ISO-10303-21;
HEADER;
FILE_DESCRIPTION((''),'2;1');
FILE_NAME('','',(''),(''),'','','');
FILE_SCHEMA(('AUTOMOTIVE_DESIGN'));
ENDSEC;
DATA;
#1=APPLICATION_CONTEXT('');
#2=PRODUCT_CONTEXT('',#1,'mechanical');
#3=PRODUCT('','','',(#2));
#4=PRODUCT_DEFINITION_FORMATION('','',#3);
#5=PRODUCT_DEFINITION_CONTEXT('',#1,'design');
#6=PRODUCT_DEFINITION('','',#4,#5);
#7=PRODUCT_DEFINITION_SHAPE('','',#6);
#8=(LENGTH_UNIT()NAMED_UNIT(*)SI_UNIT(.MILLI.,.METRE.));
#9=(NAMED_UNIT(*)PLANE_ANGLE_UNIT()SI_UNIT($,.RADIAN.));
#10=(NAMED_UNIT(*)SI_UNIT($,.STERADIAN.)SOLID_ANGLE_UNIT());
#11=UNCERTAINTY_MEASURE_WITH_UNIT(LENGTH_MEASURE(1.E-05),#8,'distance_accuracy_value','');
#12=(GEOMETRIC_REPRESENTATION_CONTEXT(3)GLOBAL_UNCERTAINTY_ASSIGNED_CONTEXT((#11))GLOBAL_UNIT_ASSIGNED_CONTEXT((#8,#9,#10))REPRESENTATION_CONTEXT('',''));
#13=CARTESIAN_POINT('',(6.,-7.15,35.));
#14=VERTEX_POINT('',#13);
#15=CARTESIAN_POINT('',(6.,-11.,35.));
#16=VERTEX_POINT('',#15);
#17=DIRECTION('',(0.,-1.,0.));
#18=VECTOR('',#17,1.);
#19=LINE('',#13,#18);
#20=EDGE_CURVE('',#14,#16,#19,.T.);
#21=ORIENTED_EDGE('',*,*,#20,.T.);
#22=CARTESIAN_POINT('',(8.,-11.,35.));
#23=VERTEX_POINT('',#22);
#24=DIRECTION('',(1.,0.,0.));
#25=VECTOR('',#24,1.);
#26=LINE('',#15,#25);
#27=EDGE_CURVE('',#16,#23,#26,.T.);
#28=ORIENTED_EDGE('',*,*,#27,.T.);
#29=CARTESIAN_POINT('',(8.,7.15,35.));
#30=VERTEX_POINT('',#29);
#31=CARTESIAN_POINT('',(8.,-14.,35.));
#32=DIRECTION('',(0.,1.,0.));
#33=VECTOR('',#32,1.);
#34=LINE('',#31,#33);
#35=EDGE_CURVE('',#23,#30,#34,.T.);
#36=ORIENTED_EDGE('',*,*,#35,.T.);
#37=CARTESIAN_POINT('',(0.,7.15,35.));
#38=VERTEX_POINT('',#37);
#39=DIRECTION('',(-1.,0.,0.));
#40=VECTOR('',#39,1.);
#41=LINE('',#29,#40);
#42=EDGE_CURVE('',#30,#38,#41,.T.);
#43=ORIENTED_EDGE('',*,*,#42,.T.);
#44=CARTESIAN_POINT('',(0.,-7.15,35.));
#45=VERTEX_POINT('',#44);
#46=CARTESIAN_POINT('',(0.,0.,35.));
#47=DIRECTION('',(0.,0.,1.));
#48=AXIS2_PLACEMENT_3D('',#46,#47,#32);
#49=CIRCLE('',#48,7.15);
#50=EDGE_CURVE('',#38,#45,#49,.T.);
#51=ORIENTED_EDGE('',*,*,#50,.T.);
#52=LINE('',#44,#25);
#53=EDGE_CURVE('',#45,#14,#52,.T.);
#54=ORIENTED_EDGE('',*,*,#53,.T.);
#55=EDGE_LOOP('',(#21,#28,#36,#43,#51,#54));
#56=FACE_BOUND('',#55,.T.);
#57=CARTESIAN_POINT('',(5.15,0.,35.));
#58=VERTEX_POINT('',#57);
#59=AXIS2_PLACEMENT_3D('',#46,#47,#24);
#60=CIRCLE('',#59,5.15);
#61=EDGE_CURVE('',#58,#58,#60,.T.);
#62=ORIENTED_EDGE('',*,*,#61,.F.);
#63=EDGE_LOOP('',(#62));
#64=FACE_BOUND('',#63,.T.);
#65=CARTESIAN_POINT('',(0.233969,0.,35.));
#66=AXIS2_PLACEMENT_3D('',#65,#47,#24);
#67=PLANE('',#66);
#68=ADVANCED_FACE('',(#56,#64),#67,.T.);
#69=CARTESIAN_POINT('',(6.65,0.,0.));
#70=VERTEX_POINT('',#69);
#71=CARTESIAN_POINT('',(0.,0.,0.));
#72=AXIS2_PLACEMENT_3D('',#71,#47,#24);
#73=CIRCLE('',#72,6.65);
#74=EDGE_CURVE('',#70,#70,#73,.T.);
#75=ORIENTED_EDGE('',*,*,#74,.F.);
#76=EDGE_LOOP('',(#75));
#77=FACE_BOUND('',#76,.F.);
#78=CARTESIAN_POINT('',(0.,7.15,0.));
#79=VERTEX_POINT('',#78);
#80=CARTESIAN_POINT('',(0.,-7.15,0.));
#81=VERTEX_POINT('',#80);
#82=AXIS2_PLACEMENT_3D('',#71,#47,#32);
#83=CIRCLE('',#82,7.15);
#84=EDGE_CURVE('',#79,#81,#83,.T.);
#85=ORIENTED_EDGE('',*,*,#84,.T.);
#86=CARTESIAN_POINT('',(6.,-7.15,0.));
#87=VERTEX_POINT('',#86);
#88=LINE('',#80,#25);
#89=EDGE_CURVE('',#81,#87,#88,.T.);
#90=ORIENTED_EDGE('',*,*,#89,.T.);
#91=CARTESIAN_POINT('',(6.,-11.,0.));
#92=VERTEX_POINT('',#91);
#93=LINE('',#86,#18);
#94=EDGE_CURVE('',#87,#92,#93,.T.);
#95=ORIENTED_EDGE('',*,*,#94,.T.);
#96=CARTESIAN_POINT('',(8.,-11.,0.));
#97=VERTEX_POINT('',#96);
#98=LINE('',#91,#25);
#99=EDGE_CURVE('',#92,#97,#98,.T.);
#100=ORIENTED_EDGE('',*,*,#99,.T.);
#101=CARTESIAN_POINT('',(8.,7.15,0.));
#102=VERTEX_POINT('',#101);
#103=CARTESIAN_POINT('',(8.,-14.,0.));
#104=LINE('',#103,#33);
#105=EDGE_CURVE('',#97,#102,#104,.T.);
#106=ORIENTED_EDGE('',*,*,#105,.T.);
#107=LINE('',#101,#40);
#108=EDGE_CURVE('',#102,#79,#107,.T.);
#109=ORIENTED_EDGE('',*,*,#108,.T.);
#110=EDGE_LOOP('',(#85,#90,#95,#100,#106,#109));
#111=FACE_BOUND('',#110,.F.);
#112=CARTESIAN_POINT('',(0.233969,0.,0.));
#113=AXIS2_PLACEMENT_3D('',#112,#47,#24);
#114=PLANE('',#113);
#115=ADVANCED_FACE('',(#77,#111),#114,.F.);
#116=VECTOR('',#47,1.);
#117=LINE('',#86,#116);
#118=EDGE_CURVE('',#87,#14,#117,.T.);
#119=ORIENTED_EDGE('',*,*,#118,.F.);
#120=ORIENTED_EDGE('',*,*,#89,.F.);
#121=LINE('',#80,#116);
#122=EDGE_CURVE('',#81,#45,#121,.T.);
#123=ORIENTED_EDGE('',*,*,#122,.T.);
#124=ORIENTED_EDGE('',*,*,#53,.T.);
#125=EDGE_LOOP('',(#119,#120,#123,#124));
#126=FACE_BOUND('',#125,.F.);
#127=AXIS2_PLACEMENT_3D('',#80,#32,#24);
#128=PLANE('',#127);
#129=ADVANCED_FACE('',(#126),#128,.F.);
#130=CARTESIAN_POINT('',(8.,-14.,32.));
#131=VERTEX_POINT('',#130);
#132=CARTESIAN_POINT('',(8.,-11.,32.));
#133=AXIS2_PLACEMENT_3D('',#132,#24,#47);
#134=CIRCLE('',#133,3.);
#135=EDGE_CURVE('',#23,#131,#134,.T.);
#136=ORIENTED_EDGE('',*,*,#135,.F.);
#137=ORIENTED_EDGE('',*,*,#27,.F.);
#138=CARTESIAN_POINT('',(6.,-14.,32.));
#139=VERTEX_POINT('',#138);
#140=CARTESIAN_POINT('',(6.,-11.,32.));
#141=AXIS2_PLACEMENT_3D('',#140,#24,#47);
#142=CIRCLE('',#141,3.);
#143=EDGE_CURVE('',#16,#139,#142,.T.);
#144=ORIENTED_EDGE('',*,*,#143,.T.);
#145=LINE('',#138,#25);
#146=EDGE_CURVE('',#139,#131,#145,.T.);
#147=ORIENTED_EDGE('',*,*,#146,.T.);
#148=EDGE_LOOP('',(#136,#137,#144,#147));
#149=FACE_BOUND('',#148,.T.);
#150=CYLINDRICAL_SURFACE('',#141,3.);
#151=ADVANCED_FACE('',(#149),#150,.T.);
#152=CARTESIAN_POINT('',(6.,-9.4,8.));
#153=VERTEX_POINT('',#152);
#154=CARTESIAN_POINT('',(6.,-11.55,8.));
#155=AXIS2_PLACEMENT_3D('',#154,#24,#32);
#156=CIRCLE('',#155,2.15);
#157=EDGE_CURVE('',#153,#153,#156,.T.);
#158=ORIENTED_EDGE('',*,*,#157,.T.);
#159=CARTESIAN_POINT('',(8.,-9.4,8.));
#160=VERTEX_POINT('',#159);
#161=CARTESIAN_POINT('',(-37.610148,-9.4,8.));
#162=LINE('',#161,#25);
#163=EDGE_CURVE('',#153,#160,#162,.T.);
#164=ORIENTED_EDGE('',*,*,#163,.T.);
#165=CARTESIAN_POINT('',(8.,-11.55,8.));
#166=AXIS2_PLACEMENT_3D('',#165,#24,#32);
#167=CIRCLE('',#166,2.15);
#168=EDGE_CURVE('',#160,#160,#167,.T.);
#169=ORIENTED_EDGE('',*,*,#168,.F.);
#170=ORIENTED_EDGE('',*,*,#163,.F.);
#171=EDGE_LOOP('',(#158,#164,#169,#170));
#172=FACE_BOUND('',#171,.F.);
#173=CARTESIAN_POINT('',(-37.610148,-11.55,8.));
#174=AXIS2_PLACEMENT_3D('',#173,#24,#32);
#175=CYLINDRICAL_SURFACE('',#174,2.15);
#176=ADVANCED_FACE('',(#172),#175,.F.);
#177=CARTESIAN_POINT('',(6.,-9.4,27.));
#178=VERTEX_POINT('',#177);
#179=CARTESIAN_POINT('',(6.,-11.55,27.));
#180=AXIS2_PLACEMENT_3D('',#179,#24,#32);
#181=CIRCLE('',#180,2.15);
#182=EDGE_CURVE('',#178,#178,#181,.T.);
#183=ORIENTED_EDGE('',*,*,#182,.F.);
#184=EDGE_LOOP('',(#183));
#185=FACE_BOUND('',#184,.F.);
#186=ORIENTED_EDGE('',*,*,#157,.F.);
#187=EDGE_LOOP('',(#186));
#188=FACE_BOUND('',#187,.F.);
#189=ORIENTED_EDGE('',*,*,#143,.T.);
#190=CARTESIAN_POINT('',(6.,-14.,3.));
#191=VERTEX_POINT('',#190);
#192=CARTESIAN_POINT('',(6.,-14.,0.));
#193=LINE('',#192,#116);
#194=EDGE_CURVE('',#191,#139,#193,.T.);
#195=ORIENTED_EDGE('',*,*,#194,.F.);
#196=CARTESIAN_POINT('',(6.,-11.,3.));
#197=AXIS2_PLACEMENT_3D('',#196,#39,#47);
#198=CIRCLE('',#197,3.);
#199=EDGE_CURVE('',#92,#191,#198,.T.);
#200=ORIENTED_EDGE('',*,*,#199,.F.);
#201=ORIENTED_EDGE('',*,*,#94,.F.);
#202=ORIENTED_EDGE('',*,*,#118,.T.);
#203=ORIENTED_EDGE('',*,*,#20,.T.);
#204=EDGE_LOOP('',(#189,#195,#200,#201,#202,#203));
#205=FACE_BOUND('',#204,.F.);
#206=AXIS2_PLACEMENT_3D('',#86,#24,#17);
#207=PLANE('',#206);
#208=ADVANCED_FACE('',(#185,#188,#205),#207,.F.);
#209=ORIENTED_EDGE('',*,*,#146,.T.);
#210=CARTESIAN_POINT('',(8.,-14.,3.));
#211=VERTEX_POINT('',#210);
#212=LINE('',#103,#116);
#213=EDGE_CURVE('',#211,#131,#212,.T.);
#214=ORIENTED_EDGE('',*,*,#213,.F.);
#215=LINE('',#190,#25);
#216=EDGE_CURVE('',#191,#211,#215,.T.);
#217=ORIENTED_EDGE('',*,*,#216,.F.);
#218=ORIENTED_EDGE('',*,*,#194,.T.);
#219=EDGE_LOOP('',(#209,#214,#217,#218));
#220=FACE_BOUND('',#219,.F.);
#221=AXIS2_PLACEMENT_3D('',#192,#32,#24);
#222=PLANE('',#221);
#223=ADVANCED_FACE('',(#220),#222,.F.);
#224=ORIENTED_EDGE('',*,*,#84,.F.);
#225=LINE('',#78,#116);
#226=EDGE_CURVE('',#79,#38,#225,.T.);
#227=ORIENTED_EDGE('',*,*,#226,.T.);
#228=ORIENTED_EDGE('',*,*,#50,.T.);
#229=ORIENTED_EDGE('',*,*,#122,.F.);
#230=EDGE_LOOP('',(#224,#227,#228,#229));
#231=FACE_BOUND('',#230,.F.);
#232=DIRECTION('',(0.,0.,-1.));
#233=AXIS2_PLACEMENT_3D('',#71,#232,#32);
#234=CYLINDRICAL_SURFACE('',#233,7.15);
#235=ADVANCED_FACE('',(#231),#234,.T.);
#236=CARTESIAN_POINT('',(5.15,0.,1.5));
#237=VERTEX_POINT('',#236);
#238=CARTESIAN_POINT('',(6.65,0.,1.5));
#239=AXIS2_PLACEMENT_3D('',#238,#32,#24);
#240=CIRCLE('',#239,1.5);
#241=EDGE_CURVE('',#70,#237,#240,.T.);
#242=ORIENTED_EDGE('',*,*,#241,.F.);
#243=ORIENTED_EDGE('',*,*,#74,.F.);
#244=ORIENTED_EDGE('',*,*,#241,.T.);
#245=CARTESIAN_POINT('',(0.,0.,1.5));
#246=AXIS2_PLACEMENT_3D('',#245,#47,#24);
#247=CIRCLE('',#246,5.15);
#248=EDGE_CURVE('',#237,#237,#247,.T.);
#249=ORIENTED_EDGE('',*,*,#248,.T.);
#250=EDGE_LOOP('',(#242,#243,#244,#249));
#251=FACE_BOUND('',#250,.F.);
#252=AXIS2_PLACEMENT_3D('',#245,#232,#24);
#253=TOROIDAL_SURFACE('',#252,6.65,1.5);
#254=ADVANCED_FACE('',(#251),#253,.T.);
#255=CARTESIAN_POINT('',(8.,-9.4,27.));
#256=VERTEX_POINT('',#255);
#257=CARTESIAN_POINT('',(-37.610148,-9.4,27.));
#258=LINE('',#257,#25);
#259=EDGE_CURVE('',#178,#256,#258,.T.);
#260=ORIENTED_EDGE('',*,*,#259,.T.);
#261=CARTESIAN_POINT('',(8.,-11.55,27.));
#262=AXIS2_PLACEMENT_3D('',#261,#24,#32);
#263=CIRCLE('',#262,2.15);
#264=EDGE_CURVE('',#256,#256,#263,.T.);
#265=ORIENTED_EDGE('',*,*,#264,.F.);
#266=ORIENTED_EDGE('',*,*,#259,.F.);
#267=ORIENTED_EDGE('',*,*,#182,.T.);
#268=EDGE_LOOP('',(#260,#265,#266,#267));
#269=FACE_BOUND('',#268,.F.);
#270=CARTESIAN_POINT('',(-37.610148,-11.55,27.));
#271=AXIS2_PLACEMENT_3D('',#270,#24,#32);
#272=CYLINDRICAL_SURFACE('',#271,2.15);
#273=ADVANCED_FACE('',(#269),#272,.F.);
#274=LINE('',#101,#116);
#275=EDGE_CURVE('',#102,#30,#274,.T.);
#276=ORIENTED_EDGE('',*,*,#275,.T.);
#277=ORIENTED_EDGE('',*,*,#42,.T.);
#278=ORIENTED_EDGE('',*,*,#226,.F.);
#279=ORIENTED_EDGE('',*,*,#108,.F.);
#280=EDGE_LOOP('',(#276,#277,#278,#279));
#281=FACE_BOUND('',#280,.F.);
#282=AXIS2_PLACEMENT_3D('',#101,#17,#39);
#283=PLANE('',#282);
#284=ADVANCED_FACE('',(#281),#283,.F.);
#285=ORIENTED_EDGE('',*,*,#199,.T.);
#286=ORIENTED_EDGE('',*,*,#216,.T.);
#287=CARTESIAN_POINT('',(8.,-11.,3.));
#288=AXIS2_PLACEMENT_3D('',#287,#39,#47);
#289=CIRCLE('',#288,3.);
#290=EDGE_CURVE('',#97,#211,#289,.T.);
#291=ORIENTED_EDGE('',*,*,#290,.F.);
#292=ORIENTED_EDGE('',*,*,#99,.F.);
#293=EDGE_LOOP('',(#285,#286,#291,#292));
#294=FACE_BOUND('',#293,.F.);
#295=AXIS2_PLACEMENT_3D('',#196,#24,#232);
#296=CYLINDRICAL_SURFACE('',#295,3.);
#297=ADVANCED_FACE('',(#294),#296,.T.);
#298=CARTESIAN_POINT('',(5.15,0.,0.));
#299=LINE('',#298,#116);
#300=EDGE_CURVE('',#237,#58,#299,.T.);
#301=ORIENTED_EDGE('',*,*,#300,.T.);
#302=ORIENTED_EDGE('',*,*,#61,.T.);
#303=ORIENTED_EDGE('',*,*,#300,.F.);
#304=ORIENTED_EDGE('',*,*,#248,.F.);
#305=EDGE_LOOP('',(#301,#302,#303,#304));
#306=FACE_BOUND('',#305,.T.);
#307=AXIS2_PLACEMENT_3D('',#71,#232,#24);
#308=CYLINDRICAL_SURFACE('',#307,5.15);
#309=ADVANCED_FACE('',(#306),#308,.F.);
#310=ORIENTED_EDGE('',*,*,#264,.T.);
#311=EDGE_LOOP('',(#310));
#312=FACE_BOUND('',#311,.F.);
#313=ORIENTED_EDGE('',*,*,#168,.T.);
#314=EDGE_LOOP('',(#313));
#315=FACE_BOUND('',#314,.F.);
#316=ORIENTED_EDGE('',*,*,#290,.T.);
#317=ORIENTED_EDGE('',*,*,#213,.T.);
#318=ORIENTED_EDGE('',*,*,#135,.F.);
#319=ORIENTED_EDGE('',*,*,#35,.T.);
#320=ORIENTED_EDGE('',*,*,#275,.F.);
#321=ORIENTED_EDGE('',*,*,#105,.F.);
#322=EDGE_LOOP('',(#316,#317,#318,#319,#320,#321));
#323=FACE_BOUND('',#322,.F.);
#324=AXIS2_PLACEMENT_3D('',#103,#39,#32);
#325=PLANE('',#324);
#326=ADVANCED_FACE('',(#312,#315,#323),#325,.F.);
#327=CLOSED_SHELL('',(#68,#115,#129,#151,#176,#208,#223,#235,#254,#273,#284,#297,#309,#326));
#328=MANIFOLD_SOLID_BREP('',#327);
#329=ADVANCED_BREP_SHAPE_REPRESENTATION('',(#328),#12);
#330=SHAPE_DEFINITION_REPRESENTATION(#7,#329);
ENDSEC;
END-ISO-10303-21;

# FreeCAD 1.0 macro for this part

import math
import FreeCAD as App
import Part
import Sketcher


def edges_at(feature, points):
    """Names of the edges that pass closest to the given points."""
    edges = feature.Shape.Edges
    near = lambda p: min(range(len(edges)), key=lambda i: edges[i].distToShape(Part.Vertex(*p))[0])
    return sorted({f"Edge{near(p) + 1}" for p in points})

doc = App.newDocument("Part")
body = doc.addObject("PartDesign::Body", "Body")

# Sketch on XY plane
sketch1 = body.newObject("Sketcher::SketchObject", "Sketch")
sketch1.AttachmentSupport = (doc.getObject("XY_Plane"), [""])
sketch1.MapMode = "FlatFace"
sketch1.addGeometry(Part.ArcOfCircle(Part.Circle(App.Vector(0, 0, 0), App.Vector(0, 0, 1), 7.15), math.radians(90), math.radians(270)), False)
sketch1.addGeometry(Part.LineSegment(App.Vector(0, -7.15, 0), App.Vector(6, -7.15, 0)), False)
sketch1.addGeometry(Part.LineSegment(App.Vector(6, -7.15, 0), App.Vector(6, -14, 0)), False)
sketch1.addGeometry(Part.LineSegment(App.Vector(6, -14, 0), App.Vector(8, -14, 0)), False)
sketch1.addGeometry(Part.LineSegment(App.Vector(8, -14, 0), App.Vector(8, 7.15, 0)), False)
sketch1.addGeometry(Part.LineSegment(App.Vector(8, 7.15, 0), App.Vector(0, 7.15, 0)), False)
sketch1.addGeometry(Part.Circle(App.Vector(0, 0, 0), App.Vector(0, 0, 1), 5.15), False)
sketch1.addConstraint(Sketcher.Constraint("Tangent", 0, 2, 1, 1))
sketch1.addConstraint(Sketcher.Constraint("Coincident", 1, 2, 2, 1))
sketch1.addConstraint(Sketcher.Constraint("Coincident", 2, 2, 3, 1))
sketch1.addConstraint(Sketcher.Constraint("Coincident", 3, 2, 4, 1))
sketch1.addConstraint(Sketcher.Constraint("Coincident", 4, 2, 5, 1))
sketch1.addConstraint(Sketcher.Constraint("Tangent", 5, 2, 0, 1))
sketch1.addConstraint(Sketcher.Constraint("Horizontal", 1))
sketch1.addConstraint(Sketcher.Constraint("Vertical", 2))
sketch1.addConstraint(Sketcher.Constraint("Horizontal", 3))
sketch1.addConstraint(Sketcher.Constraint("Vertical", 4))
sketch1.addConstraint(Sketcher.Constraint("Horizontal", 5))
sketch1.addConstraint(Sketcher.Constraint("Coincident", 0, 3, -1, 1))
sketch1.addConstraint(Sketcher.Constraint("Coincident", 6, 3, -1, 1))
sketch1.addConstraint(Sketcher.Constraint("Diameter", 6, 10.3))
sketch1.addConstraint(Sketcher.Constraint("DistanceX", 1, 1, 1, 2, 6.0))
sketch1.addConstraint(Sketcher.Constraint("DistanceX", 3, 1, 3, 2, 2.0))
sketch1.addConstraint(Sketcher.Constraint("Radius", 0, 7.15))
sketch1.addConstraint(Sketcher.Constraint("DistanceY", 2, 2, -1, 1, 14.0))
pad1 = body.newObject("PartDesign::Pad", "Pad")
pad1.Profile = sketch1
pad1.Length = 35

# Sketch on YZ plane
sketch2 = body.newObject("Sketcher::SketchObject", "Sketch001")
sketch2.AttachmentSupport = (doc.getObject("YZ_Plane"), [""])
sketch2.MapMode = "FlatFace"
sketch2.AttachmentOffset = App.Placement(App.Vector(0, 0, 6), App.Rotation())
sketch2.addGeometry(Part.Circle(App.Vector(-11.55, 8, 0), App.Vector(0, 0, 1), 2.15), False)
sketch2.addGeometry(Part.Circle(App.Vector(-11.55, 27, 0), App.Vector(0, 0, 1), 2.15), False)
sketch2.addConstraint(Sketcher.Constraint("Equal", 0, 1))
sketch2.addConstraint(Sketcher.Constraint("Vertical", 0, 3, 1, 3))
sketch2.addConstraint(Sketcher.Constraint("Diameter", 0, 4.3))
sketch2.addConstraint(Sketcher.Constraint("DistanceY", -1, 1, 0, 3, 8.0))
sketch2.addConstraint(Sketcher.Constraint("DistanceY", -1, 1, 1, 3, 27.0))
sketch2.addConstraint(Sketcher.Constraint("DistanceX", 0, 3, -1, 1, 11.55))
doc.recompute()
hole = body.newObject("PartDesign::Hole", "Hole")
hole.Profile = sketch2
hole.ThreadType = "None"
hole.Diameter = 4.3
hole.DepthType = "ThroughAll"
hole.Reversed = True
doc.recompute()

fillet = body.newObject("PartDesign::Fillet", "Fillet")
fillet.Base = (hole, edges_at(hole, [(7, -14, 0), (7, -14, 35)]))
fillet.Radius = 3
doc.recompute()

fillet2 = body.newObject("PartDesign::Fillet", "Fillet001")
fillet2.Base = (fillet, edges_at(fillet, [(-5.15, 0, 0)]))
fillet2.Radius = 1.5

doc.recompute()
